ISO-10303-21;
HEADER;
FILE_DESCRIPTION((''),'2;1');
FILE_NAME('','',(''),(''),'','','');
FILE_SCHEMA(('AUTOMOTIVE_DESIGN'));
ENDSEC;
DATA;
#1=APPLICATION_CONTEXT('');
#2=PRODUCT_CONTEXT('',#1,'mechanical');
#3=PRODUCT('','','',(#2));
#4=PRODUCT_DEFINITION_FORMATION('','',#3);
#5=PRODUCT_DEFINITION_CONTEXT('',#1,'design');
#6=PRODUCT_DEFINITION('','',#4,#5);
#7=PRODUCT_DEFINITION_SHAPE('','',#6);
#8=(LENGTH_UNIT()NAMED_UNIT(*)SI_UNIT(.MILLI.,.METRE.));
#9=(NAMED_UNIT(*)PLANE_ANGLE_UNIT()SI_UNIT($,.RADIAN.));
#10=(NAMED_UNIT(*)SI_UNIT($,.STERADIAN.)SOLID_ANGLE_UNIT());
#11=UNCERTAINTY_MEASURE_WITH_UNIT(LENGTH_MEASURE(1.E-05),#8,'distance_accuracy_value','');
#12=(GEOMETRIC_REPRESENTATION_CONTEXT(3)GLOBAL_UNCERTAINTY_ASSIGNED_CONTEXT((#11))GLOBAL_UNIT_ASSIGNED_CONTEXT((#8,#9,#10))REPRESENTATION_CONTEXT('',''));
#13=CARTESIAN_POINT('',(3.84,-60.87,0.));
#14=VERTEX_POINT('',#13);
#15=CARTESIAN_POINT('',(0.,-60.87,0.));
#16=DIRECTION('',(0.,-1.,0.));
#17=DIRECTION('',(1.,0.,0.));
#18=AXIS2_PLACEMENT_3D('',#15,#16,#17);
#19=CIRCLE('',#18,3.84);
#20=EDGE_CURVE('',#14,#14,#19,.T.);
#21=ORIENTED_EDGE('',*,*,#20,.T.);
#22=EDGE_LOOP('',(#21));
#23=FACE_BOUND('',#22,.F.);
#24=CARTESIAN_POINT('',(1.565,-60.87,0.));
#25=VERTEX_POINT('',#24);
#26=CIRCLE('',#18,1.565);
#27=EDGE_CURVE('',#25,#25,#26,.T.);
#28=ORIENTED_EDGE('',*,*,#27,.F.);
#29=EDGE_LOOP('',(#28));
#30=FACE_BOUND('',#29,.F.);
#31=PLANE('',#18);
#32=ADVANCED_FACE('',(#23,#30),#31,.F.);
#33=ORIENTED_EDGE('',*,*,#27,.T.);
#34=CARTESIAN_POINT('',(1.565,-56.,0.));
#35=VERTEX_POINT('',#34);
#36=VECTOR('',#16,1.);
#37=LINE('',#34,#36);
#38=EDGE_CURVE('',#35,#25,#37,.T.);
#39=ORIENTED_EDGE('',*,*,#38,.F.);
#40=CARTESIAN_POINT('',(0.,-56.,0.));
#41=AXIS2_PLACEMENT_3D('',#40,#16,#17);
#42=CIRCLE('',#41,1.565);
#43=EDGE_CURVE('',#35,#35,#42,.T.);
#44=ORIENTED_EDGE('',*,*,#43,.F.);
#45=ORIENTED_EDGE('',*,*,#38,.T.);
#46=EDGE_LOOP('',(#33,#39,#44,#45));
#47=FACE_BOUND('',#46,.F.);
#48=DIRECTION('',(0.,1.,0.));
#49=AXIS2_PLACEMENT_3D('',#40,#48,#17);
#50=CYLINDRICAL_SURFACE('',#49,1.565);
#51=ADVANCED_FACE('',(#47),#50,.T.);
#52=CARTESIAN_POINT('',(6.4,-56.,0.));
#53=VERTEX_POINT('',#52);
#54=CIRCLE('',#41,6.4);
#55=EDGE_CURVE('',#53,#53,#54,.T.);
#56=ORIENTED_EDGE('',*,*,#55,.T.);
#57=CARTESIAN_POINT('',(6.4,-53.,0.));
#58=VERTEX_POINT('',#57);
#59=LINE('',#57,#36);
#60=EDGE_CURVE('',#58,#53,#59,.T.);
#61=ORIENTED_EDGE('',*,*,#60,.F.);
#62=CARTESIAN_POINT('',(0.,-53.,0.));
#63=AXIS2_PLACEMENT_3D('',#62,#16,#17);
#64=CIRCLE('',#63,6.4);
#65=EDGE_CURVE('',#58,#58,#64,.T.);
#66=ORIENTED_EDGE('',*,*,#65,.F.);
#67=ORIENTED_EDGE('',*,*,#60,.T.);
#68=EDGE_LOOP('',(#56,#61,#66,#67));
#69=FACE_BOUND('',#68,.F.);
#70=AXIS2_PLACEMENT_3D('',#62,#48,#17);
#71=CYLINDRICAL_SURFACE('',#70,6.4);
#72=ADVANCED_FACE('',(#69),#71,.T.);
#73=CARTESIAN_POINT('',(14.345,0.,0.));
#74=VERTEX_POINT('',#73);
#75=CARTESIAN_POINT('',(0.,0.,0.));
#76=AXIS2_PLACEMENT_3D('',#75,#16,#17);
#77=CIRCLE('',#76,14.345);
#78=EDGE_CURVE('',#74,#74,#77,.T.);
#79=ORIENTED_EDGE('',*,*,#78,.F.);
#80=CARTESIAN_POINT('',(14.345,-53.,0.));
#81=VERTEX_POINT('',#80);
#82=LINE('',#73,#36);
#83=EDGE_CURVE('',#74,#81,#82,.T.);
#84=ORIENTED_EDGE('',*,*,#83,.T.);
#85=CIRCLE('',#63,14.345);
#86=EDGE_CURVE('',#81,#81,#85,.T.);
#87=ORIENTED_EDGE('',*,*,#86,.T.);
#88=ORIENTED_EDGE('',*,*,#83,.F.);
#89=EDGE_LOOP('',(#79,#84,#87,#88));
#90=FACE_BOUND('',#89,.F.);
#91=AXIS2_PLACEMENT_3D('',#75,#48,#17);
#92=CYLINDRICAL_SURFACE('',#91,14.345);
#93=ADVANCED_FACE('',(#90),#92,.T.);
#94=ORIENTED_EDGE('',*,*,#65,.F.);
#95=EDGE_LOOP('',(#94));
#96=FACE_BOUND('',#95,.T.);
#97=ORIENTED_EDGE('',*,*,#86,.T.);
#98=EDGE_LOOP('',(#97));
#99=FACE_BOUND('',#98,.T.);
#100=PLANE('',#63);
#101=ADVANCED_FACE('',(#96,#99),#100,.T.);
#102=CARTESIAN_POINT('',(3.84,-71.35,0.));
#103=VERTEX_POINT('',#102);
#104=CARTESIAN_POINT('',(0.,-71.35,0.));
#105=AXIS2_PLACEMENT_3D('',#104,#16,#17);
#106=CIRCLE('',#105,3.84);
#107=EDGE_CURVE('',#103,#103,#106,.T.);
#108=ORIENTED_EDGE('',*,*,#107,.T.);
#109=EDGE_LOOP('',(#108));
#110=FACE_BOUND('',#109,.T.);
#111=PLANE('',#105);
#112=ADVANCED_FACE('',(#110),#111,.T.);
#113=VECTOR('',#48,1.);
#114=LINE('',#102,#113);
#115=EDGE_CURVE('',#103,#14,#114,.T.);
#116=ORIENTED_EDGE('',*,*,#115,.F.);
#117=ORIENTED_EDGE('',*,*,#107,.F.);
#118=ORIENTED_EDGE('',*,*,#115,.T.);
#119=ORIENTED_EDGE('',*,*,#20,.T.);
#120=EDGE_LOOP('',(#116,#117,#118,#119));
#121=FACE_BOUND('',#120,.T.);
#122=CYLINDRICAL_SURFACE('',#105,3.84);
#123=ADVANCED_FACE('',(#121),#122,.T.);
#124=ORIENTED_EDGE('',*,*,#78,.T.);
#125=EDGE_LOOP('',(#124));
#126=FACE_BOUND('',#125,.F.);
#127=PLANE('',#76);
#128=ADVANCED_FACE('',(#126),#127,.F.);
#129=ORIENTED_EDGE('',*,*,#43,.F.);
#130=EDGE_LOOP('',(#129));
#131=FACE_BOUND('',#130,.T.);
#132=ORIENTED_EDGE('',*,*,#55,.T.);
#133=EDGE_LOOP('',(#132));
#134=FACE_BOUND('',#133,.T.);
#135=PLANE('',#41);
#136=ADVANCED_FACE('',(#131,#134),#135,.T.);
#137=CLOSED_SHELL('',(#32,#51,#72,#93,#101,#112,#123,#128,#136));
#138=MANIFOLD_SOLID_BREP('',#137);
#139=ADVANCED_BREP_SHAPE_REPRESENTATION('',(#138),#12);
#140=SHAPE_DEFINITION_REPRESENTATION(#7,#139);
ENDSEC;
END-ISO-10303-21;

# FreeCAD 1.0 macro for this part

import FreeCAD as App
import Part
import Sketcher
from FreeCAD import Vector

doc = App.newDocument("Part")
body = doc.addObject("PartDesign::Body", "Body")

sketch1 = doc.addObject("Sketcher::SketchObject", "Sketch")
body.addObject(sketch1)
sketch1.AttachmentSupport = (doc.XZ_Plane, [""])
sketch1.MapMode = "FlatFace"
sketch1.addGeometry(Part.Circle(Vector(0, 0, 0), Vector(0, 0, 1), 14), False)
sketch1.addConstraint(Sketcher.Constraint("Coincident", 0, 3, -1, 1))
sketch1.addConstraint(Sketcher.Constraint("Diameter", 0, 28.69))
pad1 = doc.addObject("PartDesign::Pad", "Pad")
body.addObject(pad1)
pad1.Profile = sketch1
pad1.Length = 53

sketch2 = doc.addObject("Sketcher::SketchObject", "Sketch001")
body.addObject(sketch2)
sketch2.AttachmentSupport = (doc.XZ_Plane, [""])
sketch2.MapMode = "FlatFace"
sketch2.AttachmentOffset = App.Placement(Vector(0, 0, 53), App.Rotation())
sketch2.addGeometry(Part.Circle(Vector(0, 0, 0), Vector(0, 0, 1), 6), False)
sketch2.addConstraint(Sketcher.Constraint("Coincident", 0, 3, -1, 1))
sketch2.addConstraint(Sketcher.Constraint("Diameter", 0, 12.8))
pad2 = doc.addObject("PartDesign::Pad", "Pad001")
body.addObject(pad2)
pad2.Profile = sketch2
pad2.Length = 3

sketch3 = doc.addObject("Sketcher::SketchObject", "Sketch002")
body.addObject(sketch3)
sketch3.AttachmentSupport = (doc.XZ_Plane, [""])
sketch3.MapMode = "FlatFace"
sketch3.AttachmentOffset = App.Placement(Vector(0, 0, 56), App.Rotation())
sketch3.addGeometry(Part.Circle(Vector(0, 0, 0), Vector(0, 0, 1), 1.6), False)
sketch3.addConstraint(Sketcher.Constraint("Coincident", 0, 3, -1, 1))
sketch3.addConstraint(Sketcher.Constraint("Diameter", 0, 3.13))
pad3 = doc.addObject("PartDesign::Pad", "Pad002")
body.addObject(pad3)
pad3.Profile = sketch3
pad3.Length = 15.35

sketch4 = doc.addObject("Sketcher::SketchObject", "Sketch003")
body.addObject(sketch4)
sketch4.AttachmentSupport = (doc.XZ_Plane, [""])
sketch4.MapMode = "FlatFace"
sketch4.AttachmentOffset = App.Placement(Vector(0, 0, 71.35), App.Rotation())
sketch4.addGeometry(Part.Circle(Vector(0, 0, 0), Vector(0, 0, 1), 3.8), False)
sketch4.addGeometry(Part.Circle(Vector(0, 0, 0), Vector(0, 0, 1), 1.6), False)
sketch4.addConstraint(Sketcher.Constraint("Coincident", 0, 3, -1, 1))
sketch4.addConstraint(Sketcher.Constraint("Coincident", 1, 3, -1, 1))
sketch4.addConstraint(Sketcher.Constraint("Diameter", 0, 7.68))
sketch4.addConstraint(Sketcher.Constraint("Diameter", 1, 3.13))
pad4 = doc.addObject("PartDesign::Pad", "Pad003")
body.addObject(pad4)
pad4.Profile = sketch4
pad4.Length = 10.48
pad4.Reversed = True

doc.recompute()
